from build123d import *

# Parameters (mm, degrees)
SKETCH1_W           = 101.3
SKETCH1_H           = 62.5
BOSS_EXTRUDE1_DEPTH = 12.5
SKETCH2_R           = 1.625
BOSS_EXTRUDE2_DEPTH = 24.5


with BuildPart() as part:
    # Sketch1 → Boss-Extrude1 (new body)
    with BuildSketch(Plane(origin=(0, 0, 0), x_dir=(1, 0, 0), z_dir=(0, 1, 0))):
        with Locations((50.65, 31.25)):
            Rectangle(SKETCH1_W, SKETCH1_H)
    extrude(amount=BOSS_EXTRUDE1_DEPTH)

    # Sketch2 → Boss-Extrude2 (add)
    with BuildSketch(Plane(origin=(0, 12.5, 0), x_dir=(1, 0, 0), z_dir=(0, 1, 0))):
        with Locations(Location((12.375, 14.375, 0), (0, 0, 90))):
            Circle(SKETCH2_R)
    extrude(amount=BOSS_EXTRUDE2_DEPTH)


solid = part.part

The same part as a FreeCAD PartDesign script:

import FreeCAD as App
import Part
import Sketcher


def add_polygon(sketch, points):
    """Adds a closed chain of lines whose ends are joined by coincident constraints."""
    first, n = sketch.GeometryCount, len(points)
    for a, b in zip(points, points[1:] + points[:1]):
        sketch.addGeometry(Part.LineSegment(App.Vector(*a, 0), App.Vector(*b, 0)), False)
    for i in range(n):
        sketch.addConstraint(Sketcher.Constraint("Coincident", first + i, 2, first + (i + 1) % n, 1))

doc = App.newDocument("Part")
body = doc.addObject("PartDesign::Body", "Body")

sketch1 = body.newObject("Sketcher::SketchObject", "Sketch")
sketch1.AttachmentSupport = (doc.getObject("XZ_Plane"), [""])
sketch1.MapMode = "FlatFace"
add_polygon(sketch1, [(0, -62), (0, 0), (101, 0), (101, -62)])
sketch1.addConstraint(Sketcher.Constraint("Vertical", 0))
sketch1.addConstraint(Sketcher.Constraint("Horizontal", 1))
sketch1.addConstraint(Sketcher.Constraint("Vertical", 2))
sketch1.addConstraint(Sketcher.Constraint("Horizontal", 3))
sketch1.addConstraint(Sketcher.Constraint("Coincident", 0, 2, -1, 1))
sketch1.addConstraint(Sketcher.Constraint("DistanceX", 1, 1, 1, 2, 101.3))
sketch1.addConstraint(Sketcher.Constraint("DistanceY", 0, 1, 0, 2, 62.5))
pad1 = body.newObject("PartDesign::Pad", "Pad")
pad1.Profile = sketch1
pad1.Length = 12.5
pad1.Reversed = True

sketch2 = body.newObject("Sketcher::SketchObject", "Sketch001")
sketch2.AttachmentSupport = (doc.getObject("XZ_Plane"), [""])
sketch2.MapMode = "FlatFace"
sketch2.AttachmentOffset = App.Placement(App.Vector(0, 0, -12.5), App.Rotation())
sketch2.addGeometry(Part.Circle(App.Vector(12.4, -14.4, 0), App.Vector(0, 0, 1), 1.6), False)
sketch2.addConstraint(Sketcher.Constraint("Diameter", 0, 3.25))
sketch2.addConstraint(Sketcher.Constraint("DistanceX", -1, 1, 0, 3, 12.375))
sketch2.addConstraint(Sketcher.Constraint("DistanceY", 0, 3, -1, 1, 14.375))
pad2 = body.newObject("PartDesign::Pad", "Pad001")
pad2.Profile = sketch2
pad2.Length = 24.5
pad2.Reversed = True

doc.recompute()
